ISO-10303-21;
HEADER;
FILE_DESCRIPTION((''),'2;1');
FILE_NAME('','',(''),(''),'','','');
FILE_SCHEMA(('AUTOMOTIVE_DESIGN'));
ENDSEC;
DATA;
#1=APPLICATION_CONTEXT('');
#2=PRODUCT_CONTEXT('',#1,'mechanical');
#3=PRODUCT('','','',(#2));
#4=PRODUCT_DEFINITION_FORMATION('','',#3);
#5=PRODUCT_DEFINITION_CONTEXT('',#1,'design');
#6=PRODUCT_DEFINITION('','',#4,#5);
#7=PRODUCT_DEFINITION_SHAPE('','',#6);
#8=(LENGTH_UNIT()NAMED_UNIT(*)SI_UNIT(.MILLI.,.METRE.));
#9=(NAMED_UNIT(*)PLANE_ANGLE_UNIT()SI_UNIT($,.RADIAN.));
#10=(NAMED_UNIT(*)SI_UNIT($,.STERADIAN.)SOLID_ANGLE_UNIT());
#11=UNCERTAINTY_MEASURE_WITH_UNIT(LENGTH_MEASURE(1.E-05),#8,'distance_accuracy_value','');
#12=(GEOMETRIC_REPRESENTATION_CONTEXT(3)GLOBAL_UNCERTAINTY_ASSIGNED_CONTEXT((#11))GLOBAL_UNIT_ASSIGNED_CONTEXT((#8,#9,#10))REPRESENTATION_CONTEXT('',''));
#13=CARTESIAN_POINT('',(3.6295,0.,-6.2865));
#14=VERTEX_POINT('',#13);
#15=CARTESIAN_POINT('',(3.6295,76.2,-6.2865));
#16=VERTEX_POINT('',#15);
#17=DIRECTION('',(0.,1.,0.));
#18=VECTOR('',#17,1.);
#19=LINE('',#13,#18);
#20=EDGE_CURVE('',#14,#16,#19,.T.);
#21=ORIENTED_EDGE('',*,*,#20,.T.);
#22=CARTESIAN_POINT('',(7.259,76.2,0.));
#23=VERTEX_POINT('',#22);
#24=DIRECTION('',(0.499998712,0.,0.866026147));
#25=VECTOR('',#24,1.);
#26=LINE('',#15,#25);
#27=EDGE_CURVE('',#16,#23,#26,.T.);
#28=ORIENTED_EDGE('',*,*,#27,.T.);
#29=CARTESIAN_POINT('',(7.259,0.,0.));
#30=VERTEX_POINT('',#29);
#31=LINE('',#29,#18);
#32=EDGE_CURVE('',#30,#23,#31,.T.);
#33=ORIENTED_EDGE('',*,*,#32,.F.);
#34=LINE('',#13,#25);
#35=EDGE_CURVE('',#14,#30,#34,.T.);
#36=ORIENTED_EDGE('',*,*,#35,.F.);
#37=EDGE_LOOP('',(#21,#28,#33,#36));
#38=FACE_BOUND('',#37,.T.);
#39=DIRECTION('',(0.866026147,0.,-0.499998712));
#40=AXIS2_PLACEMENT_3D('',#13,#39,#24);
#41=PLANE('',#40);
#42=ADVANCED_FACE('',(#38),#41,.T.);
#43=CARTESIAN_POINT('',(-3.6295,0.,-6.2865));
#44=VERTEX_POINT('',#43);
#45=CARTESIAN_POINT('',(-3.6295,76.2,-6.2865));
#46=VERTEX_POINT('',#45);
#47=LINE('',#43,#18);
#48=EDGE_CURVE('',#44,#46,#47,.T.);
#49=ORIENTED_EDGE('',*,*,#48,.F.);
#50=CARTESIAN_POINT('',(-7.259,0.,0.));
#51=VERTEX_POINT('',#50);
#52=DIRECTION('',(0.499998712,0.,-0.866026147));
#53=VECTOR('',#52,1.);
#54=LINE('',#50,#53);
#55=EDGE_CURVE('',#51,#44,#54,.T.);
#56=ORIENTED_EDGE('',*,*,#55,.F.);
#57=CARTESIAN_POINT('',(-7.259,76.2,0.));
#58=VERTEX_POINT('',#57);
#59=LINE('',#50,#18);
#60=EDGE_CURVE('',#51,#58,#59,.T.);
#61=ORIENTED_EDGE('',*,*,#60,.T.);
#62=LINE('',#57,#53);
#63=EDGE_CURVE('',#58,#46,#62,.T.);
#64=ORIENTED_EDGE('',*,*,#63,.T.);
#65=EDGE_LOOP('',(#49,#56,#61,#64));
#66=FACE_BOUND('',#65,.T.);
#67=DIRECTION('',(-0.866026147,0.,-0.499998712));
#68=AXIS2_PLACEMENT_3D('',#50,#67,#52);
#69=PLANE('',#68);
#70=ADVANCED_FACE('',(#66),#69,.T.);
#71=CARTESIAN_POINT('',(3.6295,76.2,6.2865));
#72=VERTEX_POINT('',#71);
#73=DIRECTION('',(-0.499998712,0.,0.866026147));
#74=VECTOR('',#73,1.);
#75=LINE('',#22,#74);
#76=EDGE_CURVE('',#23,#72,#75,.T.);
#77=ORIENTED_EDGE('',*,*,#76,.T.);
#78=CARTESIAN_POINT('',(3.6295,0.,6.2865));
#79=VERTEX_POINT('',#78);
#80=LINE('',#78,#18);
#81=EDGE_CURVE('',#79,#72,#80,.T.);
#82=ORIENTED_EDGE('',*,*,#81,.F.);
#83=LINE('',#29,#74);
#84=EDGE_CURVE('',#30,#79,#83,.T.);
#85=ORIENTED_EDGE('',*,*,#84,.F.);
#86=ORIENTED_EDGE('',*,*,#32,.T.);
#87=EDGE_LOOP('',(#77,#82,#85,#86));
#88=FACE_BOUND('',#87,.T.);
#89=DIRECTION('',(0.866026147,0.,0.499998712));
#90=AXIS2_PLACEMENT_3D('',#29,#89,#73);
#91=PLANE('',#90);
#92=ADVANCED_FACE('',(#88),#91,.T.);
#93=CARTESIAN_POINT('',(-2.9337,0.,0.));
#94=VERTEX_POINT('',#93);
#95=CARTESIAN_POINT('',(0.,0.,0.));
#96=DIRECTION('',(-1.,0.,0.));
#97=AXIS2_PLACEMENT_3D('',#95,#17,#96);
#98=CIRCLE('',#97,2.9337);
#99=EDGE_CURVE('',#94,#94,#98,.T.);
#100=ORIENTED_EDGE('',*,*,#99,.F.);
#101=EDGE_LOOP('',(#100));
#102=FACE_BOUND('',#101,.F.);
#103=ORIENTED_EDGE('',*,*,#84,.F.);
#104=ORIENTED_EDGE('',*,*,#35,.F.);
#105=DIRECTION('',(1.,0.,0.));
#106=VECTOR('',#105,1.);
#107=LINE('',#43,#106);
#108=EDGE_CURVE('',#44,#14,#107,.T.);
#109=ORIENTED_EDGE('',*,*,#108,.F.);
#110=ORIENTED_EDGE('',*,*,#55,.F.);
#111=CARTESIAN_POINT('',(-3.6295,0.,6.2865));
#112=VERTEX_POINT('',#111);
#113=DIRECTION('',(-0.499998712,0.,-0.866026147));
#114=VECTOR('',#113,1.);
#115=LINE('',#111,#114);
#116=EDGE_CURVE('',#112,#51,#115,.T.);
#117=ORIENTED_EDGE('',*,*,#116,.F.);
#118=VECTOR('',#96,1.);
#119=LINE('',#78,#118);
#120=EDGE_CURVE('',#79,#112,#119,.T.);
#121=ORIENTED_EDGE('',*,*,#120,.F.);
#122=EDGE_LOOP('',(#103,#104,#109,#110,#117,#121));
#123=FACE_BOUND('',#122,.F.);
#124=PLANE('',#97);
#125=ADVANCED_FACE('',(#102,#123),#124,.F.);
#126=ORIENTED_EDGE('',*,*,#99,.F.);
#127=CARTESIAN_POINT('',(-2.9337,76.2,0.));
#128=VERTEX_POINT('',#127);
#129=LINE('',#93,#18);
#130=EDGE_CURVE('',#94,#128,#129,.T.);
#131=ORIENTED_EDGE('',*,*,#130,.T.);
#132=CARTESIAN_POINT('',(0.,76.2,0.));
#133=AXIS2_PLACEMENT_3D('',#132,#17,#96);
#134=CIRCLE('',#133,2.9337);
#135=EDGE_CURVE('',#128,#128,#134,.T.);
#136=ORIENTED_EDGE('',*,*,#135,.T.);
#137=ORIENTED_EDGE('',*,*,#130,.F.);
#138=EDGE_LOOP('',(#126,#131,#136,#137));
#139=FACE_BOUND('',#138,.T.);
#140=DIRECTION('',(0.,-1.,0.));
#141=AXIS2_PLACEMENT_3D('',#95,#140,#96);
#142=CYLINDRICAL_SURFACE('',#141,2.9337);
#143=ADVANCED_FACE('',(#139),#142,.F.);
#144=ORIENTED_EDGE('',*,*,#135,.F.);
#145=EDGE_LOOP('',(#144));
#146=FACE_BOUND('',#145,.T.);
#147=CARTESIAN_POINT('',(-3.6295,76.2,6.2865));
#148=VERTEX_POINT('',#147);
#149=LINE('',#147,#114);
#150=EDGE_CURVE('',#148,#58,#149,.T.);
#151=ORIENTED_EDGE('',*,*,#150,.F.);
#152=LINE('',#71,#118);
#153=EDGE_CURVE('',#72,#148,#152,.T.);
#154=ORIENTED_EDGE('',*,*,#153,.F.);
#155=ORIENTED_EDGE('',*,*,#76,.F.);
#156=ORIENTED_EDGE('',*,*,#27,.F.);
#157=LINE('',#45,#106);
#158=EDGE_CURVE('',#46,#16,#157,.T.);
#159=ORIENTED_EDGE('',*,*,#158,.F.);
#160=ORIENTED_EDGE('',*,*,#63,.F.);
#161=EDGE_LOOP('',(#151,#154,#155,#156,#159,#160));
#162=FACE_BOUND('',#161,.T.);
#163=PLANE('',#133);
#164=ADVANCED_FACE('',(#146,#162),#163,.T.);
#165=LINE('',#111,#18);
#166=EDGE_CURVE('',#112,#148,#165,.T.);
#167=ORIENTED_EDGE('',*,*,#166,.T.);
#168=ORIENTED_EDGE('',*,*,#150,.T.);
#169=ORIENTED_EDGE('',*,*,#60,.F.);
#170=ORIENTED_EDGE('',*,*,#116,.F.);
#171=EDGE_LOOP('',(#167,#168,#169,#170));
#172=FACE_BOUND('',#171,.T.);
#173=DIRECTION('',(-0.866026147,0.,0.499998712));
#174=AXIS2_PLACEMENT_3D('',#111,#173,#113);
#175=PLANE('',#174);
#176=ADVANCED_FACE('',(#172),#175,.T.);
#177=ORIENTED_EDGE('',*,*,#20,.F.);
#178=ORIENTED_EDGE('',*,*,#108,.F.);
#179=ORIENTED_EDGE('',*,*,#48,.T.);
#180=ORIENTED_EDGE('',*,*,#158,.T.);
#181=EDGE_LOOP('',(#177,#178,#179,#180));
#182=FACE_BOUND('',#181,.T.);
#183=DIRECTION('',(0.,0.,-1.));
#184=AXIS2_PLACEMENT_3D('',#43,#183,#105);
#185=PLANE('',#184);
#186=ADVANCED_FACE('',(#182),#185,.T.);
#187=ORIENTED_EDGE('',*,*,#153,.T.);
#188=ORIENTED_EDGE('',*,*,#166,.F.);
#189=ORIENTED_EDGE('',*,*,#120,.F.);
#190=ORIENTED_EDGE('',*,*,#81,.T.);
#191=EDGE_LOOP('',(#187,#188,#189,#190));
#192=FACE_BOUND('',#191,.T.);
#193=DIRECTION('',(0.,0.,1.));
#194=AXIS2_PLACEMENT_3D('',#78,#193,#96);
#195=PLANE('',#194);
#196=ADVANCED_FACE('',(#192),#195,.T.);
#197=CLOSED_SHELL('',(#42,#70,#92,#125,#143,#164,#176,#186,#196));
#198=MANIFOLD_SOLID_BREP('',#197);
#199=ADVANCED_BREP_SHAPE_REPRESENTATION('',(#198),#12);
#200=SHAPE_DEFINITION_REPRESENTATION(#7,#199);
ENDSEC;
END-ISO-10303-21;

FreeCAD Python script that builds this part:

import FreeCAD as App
import Part
import Sketcher

V = App.Vector
Q = App.Units.Quantity


def add_polygon(sketch, points):
    """Adds a closed chain of lines whose ends are joined by coincident constraints."""
    first, n = sketch.GeometryCount, len(points)
    for a, b in zip(points, points[1:] + points[:1]):
        sketch.addGeometry(Part.LineSegment(App.Vector(*a, 0), App.Vector(*b, 0)), False)
    for i in range(n):
        sketch.addConstraint(Sketcher.Constraint("Coincident", first + i, 2, first + (i + 1) % n, 1))

doc = App.newDocument("Part")
body = doc.addObject("PartDesign::Body", "Body")

# Sketch on XZ plane
sketch1 = body.newObject("Sketcher::SketchObject", "Sketch")
sketch1.AttachmentSupport = (doc.getObject("XZ_Plane"), [""])
sketch1.MapMode = "FlatFace"
add_polygon(sketch1, [(7.3, 0), (3.6, -6.3), (-3.6, -6.3), (-7.3, 0), (-3.6, 6.3), (3.6, 6.3)])  # lines 0-5
sketch1.addGeometry(Part.Circle(V(0, 0, 0), V(0, 0, 1), 2.9), False)  # 6
sketch1.addConstraint([
    Sketcher.Constraint("Horizontal", 1),
    Sketcher.Constraint("Horizontal", 4),
    Sketcher.Constraint("Coincident", 6, 3, -1, 1),
    Sketcher.Constraint("Symmetric", 0, 2, 3, 2, -1, 1),
    Sketcher.Constraint("Symmetric", 2, 2, 5, 2, -1, 1),
    Sketcher.Constraint("PointOnObject", 2, 2, -1),
    Sketcher.Constraint("Parallel", 2, 5),
    Sketcher.Constraint("Vertical", 1, 2, 3, 2),
    Sketcher.Constraint("Diameter", 6, Q("0.231 in")),
    Sketcher.Constraint("Angle", 0, Q("-120 deg")),
    Sketcher.Constraint("DistanceY", 0, 2, -1, 1, Q("0.2475 in")),
    Sketcher.Constraint("DistanceX", 1, 2, 1, 1, 7.259),
])
pad1 = body.newObject("PartDesign::Pad", "Pad")
pad1.Profile = sketch1
pad1.Length = Q("3 in")
pad1.Reversed = True

doc.recompute()
